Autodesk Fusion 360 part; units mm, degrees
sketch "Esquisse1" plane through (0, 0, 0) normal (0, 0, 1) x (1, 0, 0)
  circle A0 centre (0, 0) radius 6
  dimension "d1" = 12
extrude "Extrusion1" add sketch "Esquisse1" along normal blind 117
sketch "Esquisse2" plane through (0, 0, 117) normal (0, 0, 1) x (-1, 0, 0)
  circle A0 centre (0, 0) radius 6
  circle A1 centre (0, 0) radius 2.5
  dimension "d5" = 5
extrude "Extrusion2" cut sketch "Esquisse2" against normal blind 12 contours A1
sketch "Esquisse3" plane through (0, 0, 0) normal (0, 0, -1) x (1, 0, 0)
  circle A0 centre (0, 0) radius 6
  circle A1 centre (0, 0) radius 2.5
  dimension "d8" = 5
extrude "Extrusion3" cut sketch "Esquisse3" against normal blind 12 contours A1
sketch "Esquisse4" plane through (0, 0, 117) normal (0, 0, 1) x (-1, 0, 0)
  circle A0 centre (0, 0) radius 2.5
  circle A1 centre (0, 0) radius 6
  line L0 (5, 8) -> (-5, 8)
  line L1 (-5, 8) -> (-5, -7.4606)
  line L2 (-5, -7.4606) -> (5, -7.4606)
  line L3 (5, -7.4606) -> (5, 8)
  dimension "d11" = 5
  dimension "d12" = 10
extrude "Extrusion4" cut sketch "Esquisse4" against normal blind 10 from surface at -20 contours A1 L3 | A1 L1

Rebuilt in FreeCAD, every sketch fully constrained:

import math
import FreeCAD as App
import Part
import Sketcher

V = App.Vector

doc = App.newDocument("Part")
body = doc.addObject("PartDesign::Body", "Body")

sketch1 = body.newObject("Sketcher::SketchObject", "Sketch")
sketch1.AttachmentSupport = (doc.getObject("XY_Plane"), [""])
sketch1.MapMode = "FlatFace"
sketch1.addGeometry(Part.Circle(V(0, 0, 0), V(0, 0, 1), 6), False)
sketch1.addConstraint([
    Sketcher.Constraint("Coincident", 0, 3, -1, 1),
    Sketcher.Constraint("Diameter", 0, 12.0),
])
pad1 = body.newObject("PartDesign::Pad", "Pad")
pad1.Profile = sketch1
pad1.Length = 117

sketch2 = body.newObject("Sketcher::SketchObject", "Sketch001")
sketch2.AttachmentSupport = (doc.getObject("XY_Plane"), [""])
sketch2.MapMode = "FlatFace"
sketch2.AttachmentOffset = App.Placement(V(0, 0, 117), App.Rotation())
sketch2.addGeometry(Part.Circle(V(0, 0, 0), V(0, 0, 1), 2.5), False)
sketch2.addConstraint([
    Sketcher.Constraint("Coincident", 0, 3, -1, 1),
    Sketcher.Constraint("Diameter", 0, 5.0),
])
pocket1 = body.newObject("PartDesign::Pocket", "Pocket")
pocket1.Profile = sketch2
pocket1.Length = 12

sketch3 = body.newObject("Sketcher::SketchObject", "Sketch002")
sketch3.AttachmentSupport = (doc.getObject("XY_Plane"), [""])
sketch3.MapMode = "FlatFace"
sketch3.addGeometry(Part.Circle(V(0, 0, 0), V(0, 0, 1), 2.5), False)
sketch3.addConstraint([
    Sketcher.Constraint("Coincident", 0, 3, -1, 1),
    Sketcher.Constraint("Diameter", 0, 5.0),
])
pocket2 = body.newObject("PartDesign::Pocket", "Pocket001")
pocket2.Profile = sketch3
pocket2.Length = 12
pocket2.Reversed = True

sketch4 = body.newObject("Sketcher::SketchObject", "Sketch003")
sketch4.AttachmentSupport = (doc.getObject("XY_Plane"), [""])
sketch4.MapMode = "FlatFace"
sketch4.AttachmentOffset = App.Placement(V(0, 0, 97), App.Rotation())
sketch4.addGeometry([
    Part.ArcOfCircle(Part.Circle(V(0, 0, 0), V(0, 0, 1), 6), math.radians(146), math.radians(214)),
    Part.LineSegment(V(-5, -3, 0), V(-5, 3, 0)),
    Part.LineSegment(V(5, 3, 0), V(5, -3, 0)),
    Part.ArcOfCircle(Part.Circle(V(0, 0, 0), V(0, 0, 1), 6), math.radians(-34), math.radians(34)),
], False)
sketch4.addConstraint([
    Sketcher.Constraint("Coincident", 0, 1, 1, 2),
    Sketcher.Constraint("Coincident", 1, 1, 0, 2),
    Sketcher.Constraint("Coincident", 2, 1, 3, 2),
    Sketcher.Constraint("Coincident", 3, 1, 2, 2),
    Sketcher.Constraint("Vertical", 1),
    Sketcher.Constraint("Vertical", 2),
    Sketcher.Constraint("Coincident", 0, 3, -1, 1),
    Sketcher.Constraint("Coincident", 3, 3, -1, 1),
    Sketcher.Constraint("Equal", 0, 3),
    Sketcher.Constraint("Horizontal", 0, 1, 2, 1),
    Sketcher.Constraint("DistanceX", 0, 1, -1, 1, 5.0),
    Sketcher.Constraint("Radius", 0, 6.0),
])
pocket3 = body.newObject("PartDesign::Pocket", "Pocket002")
pocket3.Profile = sketch4
pocket3.Length = 10

doc.recompute()
